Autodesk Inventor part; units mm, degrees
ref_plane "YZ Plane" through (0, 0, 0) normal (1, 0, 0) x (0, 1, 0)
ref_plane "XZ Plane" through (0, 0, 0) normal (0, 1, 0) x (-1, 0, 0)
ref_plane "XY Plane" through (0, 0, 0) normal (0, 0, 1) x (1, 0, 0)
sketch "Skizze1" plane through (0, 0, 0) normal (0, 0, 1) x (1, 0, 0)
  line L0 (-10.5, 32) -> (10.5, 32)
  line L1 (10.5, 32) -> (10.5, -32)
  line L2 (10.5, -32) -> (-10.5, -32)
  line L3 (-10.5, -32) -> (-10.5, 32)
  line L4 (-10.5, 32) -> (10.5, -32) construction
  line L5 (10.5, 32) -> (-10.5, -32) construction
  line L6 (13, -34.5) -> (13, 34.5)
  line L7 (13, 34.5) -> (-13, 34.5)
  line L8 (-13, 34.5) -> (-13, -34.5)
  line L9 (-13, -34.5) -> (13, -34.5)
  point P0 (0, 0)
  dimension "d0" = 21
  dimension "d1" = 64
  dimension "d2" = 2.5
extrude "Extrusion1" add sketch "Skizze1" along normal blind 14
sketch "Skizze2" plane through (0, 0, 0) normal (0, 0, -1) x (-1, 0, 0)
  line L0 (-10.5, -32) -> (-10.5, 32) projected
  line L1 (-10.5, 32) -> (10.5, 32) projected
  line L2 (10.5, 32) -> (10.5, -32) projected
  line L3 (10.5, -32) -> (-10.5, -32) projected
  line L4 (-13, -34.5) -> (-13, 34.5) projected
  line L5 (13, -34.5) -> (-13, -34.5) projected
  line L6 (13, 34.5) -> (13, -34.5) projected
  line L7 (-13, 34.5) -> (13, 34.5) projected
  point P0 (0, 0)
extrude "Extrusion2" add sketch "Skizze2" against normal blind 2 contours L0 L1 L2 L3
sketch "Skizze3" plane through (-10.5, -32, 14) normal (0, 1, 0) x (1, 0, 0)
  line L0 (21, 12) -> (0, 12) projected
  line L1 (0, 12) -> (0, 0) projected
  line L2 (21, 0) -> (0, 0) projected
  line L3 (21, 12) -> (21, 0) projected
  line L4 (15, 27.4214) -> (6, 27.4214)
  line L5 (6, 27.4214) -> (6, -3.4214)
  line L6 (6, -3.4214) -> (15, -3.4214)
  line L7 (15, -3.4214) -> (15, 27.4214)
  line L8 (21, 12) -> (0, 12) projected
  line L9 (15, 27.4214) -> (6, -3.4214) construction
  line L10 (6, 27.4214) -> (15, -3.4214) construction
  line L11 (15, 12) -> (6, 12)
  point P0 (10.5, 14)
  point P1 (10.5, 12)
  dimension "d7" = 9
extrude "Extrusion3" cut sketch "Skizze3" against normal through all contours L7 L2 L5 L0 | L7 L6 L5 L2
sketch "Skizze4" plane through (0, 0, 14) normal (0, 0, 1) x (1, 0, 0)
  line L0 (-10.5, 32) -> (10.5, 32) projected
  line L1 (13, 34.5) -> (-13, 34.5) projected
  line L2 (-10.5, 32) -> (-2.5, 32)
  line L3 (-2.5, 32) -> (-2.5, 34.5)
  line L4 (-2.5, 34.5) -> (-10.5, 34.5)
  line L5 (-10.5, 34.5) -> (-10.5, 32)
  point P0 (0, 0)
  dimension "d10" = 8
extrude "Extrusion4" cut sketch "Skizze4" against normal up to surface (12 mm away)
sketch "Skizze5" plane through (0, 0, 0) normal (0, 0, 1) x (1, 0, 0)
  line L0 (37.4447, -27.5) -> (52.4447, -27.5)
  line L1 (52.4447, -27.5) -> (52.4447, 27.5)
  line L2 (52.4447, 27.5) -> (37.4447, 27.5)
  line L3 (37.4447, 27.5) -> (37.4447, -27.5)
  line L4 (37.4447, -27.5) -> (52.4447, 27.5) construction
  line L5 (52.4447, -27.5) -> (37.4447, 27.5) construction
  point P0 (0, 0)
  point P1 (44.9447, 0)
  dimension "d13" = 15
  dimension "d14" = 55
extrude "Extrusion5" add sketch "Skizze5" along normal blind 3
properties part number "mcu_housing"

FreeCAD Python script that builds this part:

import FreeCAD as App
import Part
import Sketcher
Q = App.Units.Quantity


def add_polygon(sketch, points):
    """Adds a closed chain of lines whose ends are joined by coincident constraints."""
    first, n = sketch.GeometryCount, len(points)
    for a, b in zip(points, points[1:] + points[:1]):
        sketch.addGeometry(Part.LineSegment(App.Vector(*a, 0), App.Vector(*b, 0)), False)
    for i in range(n):
        sketch.addConstraint(Sketcher.Constraint("Coincident", first + i, 2, first + (i + 1) % n, 1))

doc = App.newDocument("Part")
body = doc.addObject("PartDesign::Body", "Body")
body.AllowCompound = True

# Sketch on XY plane
sketch1 = body.newObject("Sketcher::SketchObject", "Sketch")
sketch1.AttachmentSupport = (doc.getObject("XY_Plane"), [""])
sketch1.MapMode = "FlatFace"
add_polygon(sketch1, [(-13, -34), (13, -34), (13, 34), (-13, 34)])  # lines 0-3
add_polygon(sketch1, [(-10, -32), (-10, 32), (10, 32), (10, -32)])  # lines 4-7
sketch1.addConstraint([
    Sketcher.Constraint("Horizontal", 0),
    Sketcher.Constraint("Vertical", 1),
    Sketcher.Constraint("Horizontal", 2),
    Sketcher.Constraint("Vertical", 3),
    Sketcher.Constraint("Vertical", 4),
    Sketcher.Constraint("Horizontal", 5),
    Sketcher.Constraint("Vertical", 6),
    Sketcher.Constraint("Horizontal", 7),
    Sketcher.Constraint("Symmetric", 0, 2, 2, 2, -1, 1),
    Sketcher.Constraint("Symmetric", 4, 2, 6, 2, -1, 1),
    Sketcher.Constraint("DistanceX", 5, 1, 5, 2, Q("21 mm")),
    Sketcher.Constraint("DistanceY", 4, 1, 4, 2, Q("64 mm")),
    Sketcher.Constraint("DistanceX", 2, 2, 4, 2, Q("2.5 mm")),
    Sketcher.Constraint("DistanceY", 4, 2, 2, 2, Q("2.5 mm")),
])
pad1 = body.newObject("PartDesign::Pad", "Pad")
pad1.Profile = sketch1
pad1.Length = 14

# Sketch on XY plane
sketch2 = body.newObject("Sketcher::SketchObject", "Sketch001")
sketch2.AttachmentSupport = (doc.getObject("XY_Plane"), [""])
sketch2.MapMode = "FlatFace"
add_polygon(sketch2, [(10, 32), (10, -32), (-10, -32), (-10, 32)])  # lines 0-3
sketch2.addConstraint([
    Sketcher.Constraint("Vertical", 0),
    Sketcher.Constraint("Horizontal", 1),
    Sketcher.Constraint("Vertical", 2),
    Sketcher.Constraint("Horizontal", 3),
    Sketcher.Constraint("Symmetric", 0, 2, 2, 2, -1, 1),
    Sketcher.Constraint("DistanceX", 1, 2, 1, 1, Q("21 mm")),
    Sketcher.Constraint("DistanceY", 0, 2, 0, 1, Q("64 mm")),
])
pad2 = body.newObject("PartDesign::Pad", "Pad001")
pad2.Profile = sketch2
pad2.Length = 2

# Sketch on XZ plane
sketch3 = body.newObject("Sketcher::SketchObject", "Sketch002")
sketch3.AttachmentSupport = (doc.getObject("XZ_Plane"), [""])
sketch3.MapMode = "FlatFace"
sketch3.AttachmentOffset = App.Placement(App.Vector(0, 0, 32), App.Rotation())
add_polygon(sketch3, [(4, 2), (-4, 2), (-4, 17), (4, 17)])  # lines 0-3
sketch3.addConstraint([
    Sketcher.Constraint("Horizontal", 0),
    Sketcher.Constraint("Vertical", 1),
    Sketcher.Constraint("Horizontal", 2),
    Sketcher.Constraint("Vertical", 3),
    Sketcher.Constraint("DistanceX", 0, 2, 0, 1, Q("9 mm")),
    Sketcher.Constraint("DistanceY", -1, 1, 0, 2, Q("2 mm")),
    Sketcher.Constraint("DistanceX", 0, 2, -1, 1, Q("4.5 mm")),
    Sketcher.Constraint("DistanceY", 1, 1, 1, 2, Q("15.4214 mm")),
])
pocket1 = body.newObject("PartDesign::Pocket", "Pocket")
pocket1.Profile = sketch3
pocket1.Type = "ThroughAll"
pocket1.Reversed = True

# Sketch on XY plane
sketch4 = body.newObject("Sketcher::SketchObject", "Sketch003")
sketch4.AttachmentSupport = (doc.getObject("XY_Plane"), [""])
sketch4.MapMode = "FlatFace"
sketch4.AttachmentOffset = App.Placement(App.Vector(0, 0, 14), App.Rotation())
add_polygon(sketch4, [(-10.5, 34.5), (-10.5, 32), (-2.5, 32), (-2.5, 34.5)])  # lines 0-3
sketch4.addConstraint([
    Sketcher.Constraint("Vertical", 0),
    Sketcher.Constraint("Horizontal", 1),
    Sketcher.Constraint("Vertical", 2),
    Sketcher.Constraint("Horizontal", 3),
    Sketcher.Constraint("DistanceX", 1, 1, 1, 2, Q("8 mm")),
    Sketcher.Constraint("DistanceY", 0, 2, 0, 1, Q("2.5 mm")),
    Sketcher.Constraint("DistanceY", -1, 1, 0, 2, Q("32 mm")),
    Sketcher.Constraint("DistanceX", 0, 2, -1, 1, Q("10.5 mm")),
])
pocket2 = body.newObject("PartDesign::Pocket", "Pocket001")
pocket2.Profile = sketch4
pocket2.Length = 12

# Sketch on XY plane
sketch5 = body.newObject("Sketcher::SketchObject", "Sketch004")
sketch5.AttachmentSupport = (doc.getObject("XY_Plane"), [""])
sketch5.MapMode = "FlatFace"
add_polygon(sketch5, [(37, 28), (37, -28), (52, -28), (52, 28)])  # lines 0-3
sketch5.addConstraint([
    Sketcher.Constraint("Vertical", 0),
    Sketcher.Constraint("Horizontal", 1),
    Sketcher.Constraint("Vertical", 2),
    Sketcher.Constraint("Horizontal", 3),
    Sketcher.Constraint("DistanceX", 1, 1, 1, 2, Q("15 mm")),
    Sketcher.Constraint("DistanceY", 0, 2, 0, 1, Q("55 mm")),
    Sketcher.Constraint("DistanceY", 0, 2, -1, 1, Q("27.5 mm")),
    Sketcher.Constraint("DistanceX", -1, 1, 0, 2, Q("37.4447 mm")),
])
pad3 = body.newObject("PartDesign::Pad", "Pad002")
pad3.Profile = sketch5
pad3.Length = 3

doc.recompute()
